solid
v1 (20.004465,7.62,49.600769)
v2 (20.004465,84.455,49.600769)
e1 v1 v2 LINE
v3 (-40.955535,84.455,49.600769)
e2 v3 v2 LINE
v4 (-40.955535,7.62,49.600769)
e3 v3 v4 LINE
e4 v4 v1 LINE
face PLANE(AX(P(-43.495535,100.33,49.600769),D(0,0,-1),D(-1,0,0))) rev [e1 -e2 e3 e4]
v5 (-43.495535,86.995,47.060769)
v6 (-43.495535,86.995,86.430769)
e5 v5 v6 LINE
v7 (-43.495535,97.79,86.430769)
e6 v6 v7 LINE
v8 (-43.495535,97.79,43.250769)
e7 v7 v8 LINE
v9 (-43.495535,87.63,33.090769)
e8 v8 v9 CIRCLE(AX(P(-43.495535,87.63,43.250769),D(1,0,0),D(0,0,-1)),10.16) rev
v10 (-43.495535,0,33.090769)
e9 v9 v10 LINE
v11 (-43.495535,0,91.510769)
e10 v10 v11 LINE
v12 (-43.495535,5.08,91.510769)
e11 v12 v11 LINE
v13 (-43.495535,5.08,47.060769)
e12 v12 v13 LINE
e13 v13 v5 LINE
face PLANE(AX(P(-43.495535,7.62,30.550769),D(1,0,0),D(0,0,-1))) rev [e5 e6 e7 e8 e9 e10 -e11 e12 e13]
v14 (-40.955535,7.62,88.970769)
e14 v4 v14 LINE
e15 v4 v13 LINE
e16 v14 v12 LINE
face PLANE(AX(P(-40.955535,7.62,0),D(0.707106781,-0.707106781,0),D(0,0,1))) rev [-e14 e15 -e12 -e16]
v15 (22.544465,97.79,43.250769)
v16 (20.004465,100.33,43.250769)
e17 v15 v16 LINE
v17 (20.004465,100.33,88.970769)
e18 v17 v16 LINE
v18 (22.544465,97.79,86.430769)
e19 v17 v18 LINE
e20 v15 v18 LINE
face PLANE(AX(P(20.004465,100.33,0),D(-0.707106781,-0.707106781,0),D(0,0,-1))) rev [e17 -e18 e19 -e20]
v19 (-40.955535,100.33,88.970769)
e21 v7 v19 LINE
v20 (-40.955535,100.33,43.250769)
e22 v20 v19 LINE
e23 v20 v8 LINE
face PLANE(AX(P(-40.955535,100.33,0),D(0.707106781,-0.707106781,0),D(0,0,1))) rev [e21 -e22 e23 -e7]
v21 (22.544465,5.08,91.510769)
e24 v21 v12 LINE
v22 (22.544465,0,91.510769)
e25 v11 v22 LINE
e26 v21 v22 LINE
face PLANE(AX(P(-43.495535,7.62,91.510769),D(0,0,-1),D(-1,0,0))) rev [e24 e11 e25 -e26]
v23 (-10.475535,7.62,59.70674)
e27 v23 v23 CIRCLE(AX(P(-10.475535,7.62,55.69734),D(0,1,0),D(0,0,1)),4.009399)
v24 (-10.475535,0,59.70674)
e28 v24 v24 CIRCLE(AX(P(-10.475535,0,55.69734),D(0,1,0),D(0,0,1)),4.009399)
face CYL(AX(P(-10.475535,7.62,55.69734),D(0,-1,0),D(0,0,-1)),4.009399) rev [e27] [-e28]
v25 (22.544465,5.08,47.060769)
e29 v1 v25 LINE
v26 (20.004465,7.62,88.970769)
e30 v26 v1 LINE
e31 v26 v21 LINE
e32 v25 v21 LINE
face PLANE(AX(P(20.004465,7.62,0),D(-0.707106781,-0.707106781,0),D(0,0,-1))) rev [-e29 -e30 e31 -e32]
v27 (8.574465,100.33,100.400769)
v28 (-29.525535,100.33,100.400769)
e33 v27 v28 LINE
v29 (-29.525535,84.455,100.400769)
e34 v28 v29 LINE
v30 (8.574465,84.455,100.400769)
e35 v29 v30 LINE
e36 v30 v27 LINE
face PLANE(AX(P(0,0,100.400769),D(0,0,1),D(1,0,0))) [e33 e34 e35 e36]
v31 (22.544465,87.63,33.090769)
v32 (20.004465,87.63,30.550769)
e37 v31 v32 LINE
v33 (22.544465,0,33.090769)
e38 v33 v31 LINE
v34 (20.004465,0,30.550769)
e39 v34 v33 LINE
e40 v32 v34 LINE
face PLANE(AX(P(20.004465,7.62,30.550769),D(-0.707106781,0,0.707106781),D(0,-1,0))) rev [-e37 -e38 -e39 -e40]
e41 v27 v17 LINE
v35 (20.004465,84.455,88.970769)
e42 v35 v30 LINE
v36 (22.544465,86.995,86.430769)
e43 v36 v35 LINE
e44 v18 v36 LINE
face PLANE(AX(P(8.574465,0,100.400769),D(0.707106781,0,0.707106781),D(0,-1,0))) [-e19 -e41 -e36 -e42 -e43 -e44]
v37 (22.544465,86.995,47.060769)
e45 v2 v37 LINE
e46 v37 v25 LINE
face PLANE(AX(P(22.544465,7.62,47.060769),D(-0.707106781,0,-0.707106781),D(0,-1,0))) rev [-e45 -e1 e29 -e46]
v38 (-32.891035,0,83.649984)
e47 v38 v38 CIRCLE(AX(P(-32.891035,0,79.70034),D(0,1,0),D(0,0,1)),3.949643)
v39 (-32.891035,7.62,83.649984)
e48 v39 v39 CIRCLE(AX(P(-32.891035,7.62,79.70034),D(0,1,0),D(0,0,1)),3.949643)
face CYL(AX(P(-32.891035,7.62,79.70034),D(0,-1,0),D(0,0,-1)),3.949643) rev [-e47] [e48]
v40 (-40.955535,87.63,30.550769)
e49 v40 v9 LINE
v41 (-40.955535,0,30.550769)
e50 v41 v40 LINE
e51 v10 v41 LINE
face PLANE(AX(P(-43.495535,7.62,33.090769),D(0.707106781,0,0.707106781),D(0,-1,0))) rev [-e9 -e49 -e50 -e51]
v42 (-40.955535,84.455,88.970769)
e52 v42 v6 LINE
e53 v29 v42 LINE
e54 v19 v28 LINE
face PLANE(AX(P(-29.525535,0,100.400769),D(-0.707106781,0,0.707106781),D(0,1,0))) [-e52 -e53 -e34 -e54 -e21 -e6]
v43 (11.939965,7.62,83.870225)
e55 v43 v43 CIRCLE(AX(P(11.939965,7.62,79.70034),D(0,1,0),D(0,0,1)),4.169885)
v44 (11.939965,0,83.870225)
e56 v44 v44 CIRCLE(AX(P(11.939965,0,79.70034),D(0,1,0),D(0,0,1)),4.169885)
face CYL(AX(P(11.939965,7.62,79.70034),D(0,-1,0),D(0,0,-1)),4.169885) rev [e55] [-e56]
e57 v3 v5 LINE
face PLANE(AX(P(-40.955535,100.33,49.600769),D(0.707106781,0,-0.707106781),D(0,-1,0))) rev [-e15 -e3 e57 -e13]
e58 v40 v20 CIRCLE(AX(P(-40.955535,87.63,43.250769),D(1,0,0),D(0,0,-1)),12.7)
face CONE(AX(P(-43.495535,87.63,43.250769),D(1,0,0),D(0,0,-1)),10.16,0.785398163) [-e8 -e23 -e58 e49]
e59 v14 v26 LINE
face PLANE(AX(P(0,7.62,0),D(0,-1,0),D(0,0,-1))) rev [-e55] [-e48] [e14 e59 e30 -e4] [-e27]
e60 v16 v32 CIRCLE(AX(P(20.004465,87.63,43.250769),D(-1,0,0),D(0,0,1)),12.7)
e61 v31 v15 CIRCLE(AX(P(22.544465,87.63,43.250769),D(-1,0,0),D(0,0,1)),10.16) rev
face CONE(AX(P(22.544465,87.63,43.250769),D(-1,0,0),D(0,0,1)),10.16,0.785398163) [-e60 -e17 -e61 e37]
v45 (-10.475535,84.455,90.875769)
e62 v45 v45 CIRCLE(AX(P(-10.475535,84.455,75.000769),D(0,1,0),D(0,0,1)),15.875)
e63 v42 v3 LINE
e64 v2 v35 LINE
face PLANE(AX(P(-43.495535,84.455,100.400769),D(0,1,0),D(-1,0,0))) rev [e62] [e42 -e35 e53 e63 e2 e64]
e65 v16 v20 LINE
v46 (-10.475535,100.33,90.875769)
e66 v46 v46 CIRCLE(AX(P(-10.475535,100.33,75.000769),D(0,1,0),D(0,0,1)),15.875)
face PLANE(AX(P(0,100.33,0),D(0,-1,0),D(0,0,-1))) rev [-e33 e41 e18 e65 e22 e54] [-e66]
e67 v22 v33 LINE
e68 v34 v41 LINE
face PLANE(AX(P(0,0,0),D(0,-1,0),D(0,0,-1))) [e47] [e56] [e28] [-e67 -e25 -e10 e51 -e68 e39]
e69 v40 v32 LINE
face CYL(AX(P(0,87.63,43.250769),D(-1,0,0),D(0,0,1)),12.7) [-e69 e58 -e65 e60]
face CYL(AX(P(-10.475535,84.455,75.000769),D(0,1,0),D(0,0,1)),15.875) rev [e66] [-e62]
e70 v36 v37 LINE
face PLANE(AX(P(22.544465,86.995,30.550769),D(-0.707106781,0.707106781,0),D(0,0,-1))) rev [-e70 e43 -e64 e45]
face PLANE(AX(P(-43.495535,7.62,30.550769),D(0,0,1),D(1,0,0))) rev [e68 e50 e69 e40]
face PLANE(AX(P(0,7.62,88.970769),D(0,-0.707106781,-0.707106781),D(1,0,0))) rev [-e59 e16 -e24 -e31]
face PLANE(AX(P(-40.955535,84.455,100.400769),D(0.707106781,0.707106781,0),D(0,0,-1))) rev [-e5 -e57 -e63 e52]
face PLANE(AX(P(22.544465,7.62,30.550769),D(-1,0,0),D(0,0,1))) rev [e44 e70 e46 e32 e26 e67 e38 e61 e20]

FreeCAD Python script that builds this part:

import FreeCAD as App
import Part
import Sketcher
from FreeCAD import Vector
Q = App.Units.Quantity


def edges_at(feature, points):
    """Names of the edges that pass closest to the given points."""
    edges = feature.Shape.Edges
    near = lambda p: min(range(len(edges)), key=lambda i: edges[i].distToShape(Part.Vertex(*p))[0])
    return sorted({f"Edge{near(p) + 1}" for p in points})

doc = App.newDocument("Part")
params = doc.addObject("Spreadsheet::Sheet", "Params")
for row, (alias, value) in enumerate([
    ("sketch1_width", "2.6 in"),
    ("sketch1_height", "2.4 in"),
    ("pad1_length", "0.3 in"),
    ("sketch2_width", "2.6 in"),
    ("sketch2_height", "0.75 in"),
    ("pad2_length", "3.65 in"),
    ("sketch3_width", "2.6 in"),
    ("sketch3_height", "0.625 in"),
    ("pad3_length", "2 in"),
    ("sketch4_diameter", "1.25 in"),
    ("pocket1_length", "0.625 in"),
    ("fillet_radius", "0.5 in"),
    ("chamfer_size", "0.1 in"),
    ("chamfer2_size", "0.55 in"),
], start=1):
    params.set(f"A{row}", alias)
    params.set(f"B{row}", "=" + value)
    params.setAlias(f"B{row}", alias)

body = doc.addObject("PartDesign::Body", "Body")

sketch1 = doc.addObject("Sketcher::SketchObject", "Sketch")
body.addObject(sketch1)
sketch1.AttachmentSupport = (doc.XZ_Plane, [""])
sketch1.MapMode = "FlatFace"
sketch1.addGeometry([
    Part.LineSegment(Vector(-43.495535, 30.550769, 0), Vector(-43.495535, 91.510769, 0)),
    Part.LineSegment(Vector(-43.495535, 91.510769, 0), Vector(22.544465, 91.510769, 0)),
    Part.LineSegment(Vector(22.544465, 91.510769, 0), Vector(22.544465, 30.550769, 0)),
    Part.LineSegment(Vector(22.544465, 30.550769, 0), Vector(-43.495535, 30.550769, 0)),
    Part.Circle(Vector(-32.891035, 79.70034, 0), Vector(0, 0, 1), 3.949643),
    Part.Circle(Vector(11.939965, 79.70034, 0), Vector(0, 0, 1), 4.169885),
    Part.Circle(Vector(-10.475535, 55.69734, 0), Vector(0, 0, 1), 4.009399),
], False)
sketch1.addConstraint([
    Sketcher.Constraint("Coincident", 0, 2, 1, 1),
    Sketcher.Constraint("Coincident", 1, 2, 2, 1),
    Sketcher.Constraint("Coincident", 2, 2, 3, 1),
    Sketcher.Constraint("Coincident", 3, 2, 0, 1),
    Sketcher.Constraint("Vertical", 0),
    Sketcher.Constraint("Horizontal", 1),
    Sketcher.Constraint("Vertical", 2),
    Sketcher.Constraint("Horizontal", 3),
    Sketcher.Constraint("Horizontal", 4, 3, 5, 3),
    Sketcher.Constraint("DistanceX", 1, 1, 1, 2, Q("2.6 in")),
    Sketcher.Constraint("DistanceY", 0, 1, 0, 2, Q("2.4 in")),
    Sketcher.Constraint("DistanceX", 0, 2, 6, 3, Q("1.3 in")),
    Sketcher.Constraint("Diameter", 6, 8.018799),
    Sketcher.Constraint("Diameter", 5, 8.33977),
    Sketcher.Constraint("DistanceX", 4, 3, 5, 3, Q("1.765 in")),
    Sketcher.Constraint("DistanceY", 6, 3, 4, 3, Q("0.945 in")),
    Sketcher.Constraint("Diameter", 4, 7.899287),
    Sketcher.Constraint("DistanceX", 4, 3, 6, 3, Q("0.8825 in")),
    Sketcher.Constraint("DistanceY", -1, 1, 4, 3, 79.70034),
    Sketcher.Constraint("DistanceY", -1, 1, 0, 2, 91.510769),
    Sketcher.Constraint("DistanceX", 4, 3, -1, 1, 32.891035),
])
sketch1.setExpression("Constraints[9]", "Params.sketch1_width")
sketch1.setExpression("Constraints[10]", "Params.sketch1_height")
pad1 = doc.addObject("PartDesign::Pad", "Pad")
body.addObject(pad1)
pad1.Profile = sketch1
pad1.setExpression("Length", "Params.pad1_length")
pad1.Reversed = True

sketch2 = doc.addObject("Sketcher::SketchObject", "Sketch001")
body.addObject(sketch2)
sketch2.AttachmentSupport = (doc.XZ_Plane, [""])
sketch2.MapMode = "FlatFace"
sketch2.AttachmentOffset = App.Placement(Vector(0, 0, -0.3 * 25.4), App.Rotation())
sketch2.addGeometry([
    Part.LineSegment(Vector(-43.495535, 30.550769, 0), Vector(-43.495535, 49.600769, 0)),
    Part.LineSegment(Vector(-43.495535, 49.600769, 0), Vector(22.544465, 49.600769, 0)),
    Part.LineSegment(Vector(22.544465, 49.600769, 0), Vector(22.544465, 30.550769, 0)),
    Part.LineSegment(Vector(22.544465, 30.550769, 0), Vector(-43.495535, 30.550769, 0)),
], False)
sketch2.addConstraint([
    Sketcher.Constraint("Coincident", 0, 2, 1, 1),
    Sketcher.Constraint("Coincident", 1, 2, 2, 1),
    Sketcher.Constraint("Coincident", 2, 2, 3, 1),
    Sketcher.Constraint("Coincident", 3, 2, 0, 1),
    Sketcher.Constraint("Vertical", 0),
    Sketcher.Constraint("Horizontal", 1),
    Sketcher.Constraint("Vertical", 2),
    Sketcher.Constraint("Horizontal", 3),
    Sketcher.Constraint("DistanceX", 1, 1, 1, 2, Q("2.6 in")),
    Sketcher.Constraint("DistanceY", 0, 1, 0, 2, Q("0.75 in")),
    Sketcher.Constraint("DistanceY", -1, 1, 0, 2, 49.600769),
    Sketcher.Constraint("DistanceX", 0, 2, -1, 1, 43.495535),
])
sketch2.setExpression("Constraints[8]", "Params.sketch2_width")
sketch2.setExpression("Constraints[9]", "Params.sketch2_height")
pad2 = doc.addObject("PartDesign::Pad", "Pad001")
body.addObject(pad2)
pad2.Profile = sketch2
pad2.setExpression("Length", "Params.pad2_length")
pad2.Reversed = True

sketch3 = doc.addObject("Sketcher::SketchObject", "Sketch002")
body.addObject(sketch3)
sketch3.AttachmentSupport = (doc.XY_Plane, [""])
sketch3.MapMode = "FlatFace"
sketch3.AttachmentOffset = App.Placement(Vector(0, 0, 49.600769), App.Rotation())
sketch3.addGeometry([
    Part.LineSegment(Vector(-43.495535, 100.33, 0), Vector(-43.495535, 84.455, 0)),
    Part.LineSegment(Vector(-43.495535, 84.455, 0), Vector(22.544465, 84.455, 0)),
    Part.LineSegment(Vector(22.544465, 84.455, 0), Vector(22.544465, 100.33, 0)),
    Part.LineSegment(Vector(22.544465, 100.33, 0), Vector(-43.495535, 100.33, 0)),
], False)
sketch3.addConstraint([
    Sketcher.Constraint("Coincident", 0, 2, 1, 1),
    Sketcher.Constraint("Coincident", 1, 2, 2, 1),
    Sketcher.Constraint("Coincident", 2, 2, 3, 1),
    Sketcher.Constraint("Coincident", 3, 2, 0, 1),
    Sketcher.Constraint("Vertical", 0),
    Sketcher.Constraint("Horizontal", 1),
    Sketcher.Constraint("Vertical", 2),
    Sketcher.Constraint("Horizontal", 3),
    Sketcher.Constraint("DistanceX", 1, 1, 1, 2, Q("2.6 in")),
    Sketcher.Constraint("DistanceY", 0, 2, 0, 1, Q("0.625 in")),
    Sketcher.Constraint("DistanceY", -1, 1, 2, 2, Q("3.95 in")),
    Sketcher.Constraint("DistanceX", 0, 2, -1, 1, 43.495535),
])
sketch3.setExpression("Constraints[8]", "Params.sketch3_width")
sketch3.setExpression("Constraints[9]", "Params.sketch3_height")
pad3 = doc.addObject("PartDesign::Pad", "Pad002")
body.addObject(pad3)
pad3.Profile = sketch3
pad3.setExpression("Length", "Params.pad3_length")

sketch4 = doc.addObject("Sketcher::SketchObject", "Sketch003")
body.addObject(sketch4)
sketch4.AttachmentSupport = (doc.XZ_Plane, [""])
sketch4.MapMode = "FlatFace"
sketch4.AttachmentOffset = App.Placement(Vector(0, 0, -3.95 * 25.4), App.Rotation())
sketch4.addGeometry(Part.Circle(Vector(-10.475535, 75.000769, 0), Vector(0, 0, 1), 15.875), False)
sketch4.addConstraint([
    Sketcher.Constraint("Diameter", 0, Q("1.25 in")),
    Sketcher.Constraint("DistanceY", -1, 1, 0, 3, 75.000769),
    Sketcher.Constraint("DistanceX", 0, 3, -1, 1, 10.475535),
])
sketch4.setExpression("Constraints[0]", "Params.sketch4_diameter")
pocket1 = doc.addObject("PartDesign::Pocket", "Pocket")
body.addObject(pocket1)
pocket1.Profile = sketch4
pocket1.setExpression("Length", "Params.pocket1_length")
pocket1.Reversed = True
doc.recompute()

fillet = doc.addObject("PartDesign::Fillet", "Fillet")
body.addObject(fillet)
fillet.Base = (pocket1, edges_at(pocket1, [(-10.476, 100.33, 30.551)]))
fillet.setExpression("Radius", "Params.fillet_radius")
doc.recompute()

chamfer = doc.addObject("PartDesign::Chamfer", "Chamfer")
body.addObject(chamfer)
chamfer.Base = (fillet, edges_at(fillet, [
    (-43.496, 7.62, 70.556),
    (22.544, 100.33, 71.826),
    (22.544, 46.038, 49.601),
    (-43.496, 46.038, 49.601),
    (-10.476, 7.62, 91.511),
    (-43.496, 84.455, 75.001),
    (22.544, 84.455, 75.001),
    (-43.496, 100.33, 71.826),
    (-43.496, 43.815, 30.551),
    (-43.496, 96.61, 34.271),
    (22.544, 43.815, 30.551),
    (22.544, 96.61, 34.271),
    (22.544, 7.62, 70.556),
]))
chamfer.setExpression("Size", "Params.chamfer_size")
doc.recompute()

chamfer2 = doc.addObject("PartDesign::Chamfer", "Chamfer001")
body.addObject(chamfer2)
chamfer2.Base = (chamfer, edges_at(chamfer, [(-43.496, 92.392, 100.401), (22.544, 92.392, 100.401)]))
chamfer2.setExpression("Size", "Params.chamfer2_size")

doc.recompute()
